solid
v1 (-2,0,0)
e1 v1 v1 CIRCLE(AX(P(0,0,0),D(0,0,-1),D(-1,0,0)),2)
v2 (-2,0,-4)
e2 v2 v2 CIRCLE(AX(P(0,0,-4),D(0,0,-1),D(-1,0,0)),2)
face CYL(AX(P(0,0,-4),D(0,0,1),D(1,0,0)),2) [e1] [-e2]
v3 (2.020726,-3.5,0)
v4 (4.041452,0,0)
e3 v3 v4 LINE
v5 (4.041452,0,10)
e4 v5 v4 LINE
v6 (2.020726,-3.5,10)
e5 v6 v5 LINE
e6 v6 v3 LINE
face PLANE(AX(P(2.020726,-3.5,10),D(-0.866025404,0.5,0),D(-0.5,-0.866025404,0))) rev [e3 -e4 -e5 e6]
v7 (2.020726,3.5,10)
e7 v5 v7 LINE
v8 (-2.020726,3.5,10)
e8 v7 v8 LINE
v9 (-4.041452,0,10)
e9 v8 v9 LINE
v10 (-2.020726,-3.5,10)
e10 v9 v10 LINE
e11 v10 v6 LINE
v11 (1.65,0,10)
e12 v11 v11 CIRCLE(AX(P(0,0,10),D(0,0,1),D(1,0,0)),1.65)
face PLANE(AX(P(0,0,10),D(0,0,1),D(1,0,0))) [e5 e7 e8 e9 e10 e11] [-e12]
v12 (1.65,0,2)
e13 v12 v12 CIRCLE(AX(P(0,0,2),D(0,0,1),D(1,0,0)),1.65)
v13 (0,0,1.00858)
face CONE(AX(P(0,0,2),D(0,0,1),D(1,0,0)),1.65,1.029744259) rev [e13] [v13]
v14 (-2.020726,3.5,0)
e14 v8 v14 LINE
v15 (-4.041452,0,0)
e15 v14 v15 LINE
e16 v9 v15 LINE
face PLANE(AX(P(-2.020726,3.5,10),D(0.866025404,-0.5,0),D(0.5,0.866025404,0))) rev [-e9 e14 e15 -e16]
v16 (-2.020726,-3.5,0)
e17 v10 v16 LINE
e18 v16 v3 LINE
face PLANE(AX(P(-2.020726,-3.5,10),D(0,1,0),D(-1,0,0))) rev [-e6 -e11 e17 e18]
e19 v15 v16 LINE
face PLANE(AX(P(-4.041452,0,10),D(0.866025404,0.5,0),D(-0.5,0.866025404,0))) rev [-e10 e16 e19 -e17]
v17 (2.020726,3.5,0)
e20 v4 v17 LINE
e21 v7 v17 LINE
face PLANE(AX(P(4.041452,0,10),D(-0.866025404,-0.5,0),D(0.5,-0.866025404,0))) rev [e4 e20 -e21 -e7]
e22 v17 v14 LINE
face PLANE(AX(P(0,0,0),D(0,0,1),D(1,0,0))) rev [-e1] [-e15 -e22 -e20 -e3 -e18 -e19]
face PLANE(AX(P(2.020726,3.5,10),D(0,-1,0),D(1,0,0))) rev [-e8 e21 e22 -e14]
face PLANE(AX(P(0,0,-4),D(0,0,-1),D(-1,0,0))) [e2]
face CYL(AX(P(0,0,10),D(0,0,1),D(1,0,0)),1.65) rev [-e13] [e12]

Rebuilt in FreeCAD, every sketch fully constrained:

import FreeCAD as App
import Part
import Sketcher
from FreeCAD import Vector
Q = App.Units.Quantity

doc = App.newDocument("Part")
params = doc.addObject("Spreadsheet::Sheet", "Params")
for row, (alias, value) in enumerate([
    ("pad1_length", "10 mm"),
    ("sketch2_diameter", "4 mm"),
    ("pad2_length", "4 mm"),
    ("sketch3_diameter", "3.3 mm"),
    ("hole_diameter", "3.3 mm"),
    ("hole_depth", "8 mm"),
], start=1):
    params.set(f"A{row}", alias)
    params.set(f"B{row}", "=" + value)
    params.setAlias(f"B{row}", alias)

body = doc.addObject("PartDesign::Body", "Body")

sketch1 = doc.addObject("Sketcher::SketchObject", "Sketch")
body.addObject(sketch1)
sketch1.AttachmentSupport = (doc.XY_Plane, [""])
sketch1.MapMode = "FlatFace"
sketch1.addGeometry([
    Part.LineSegment(Vector(-2, 3.5, 0), Vector(-4, 0, 0)),
    Part.LineSegment(Vector(-4, 0, 0), Vector(-2, -3.5, 0)),
    Part.LineSegment(Vector(-2, -3.5, 0), Vector(2, -3.5, 0)),
    Part.LineSegment(Vector(2, -3.5, 0), Vector(4, 0, 0)),
    Part.LineSegment(Vector(4, 0, 0), Vector(2, 3.5, 0)),
    Part.LineSegment(Vector(2, 3.5, 0), Vector(-2, 3.5, 0)),
], False)
sketch1.addConstraint([
    Sketcher.Constraint("Coincident", 0, 2, 1, 1),
    Sketcher.Constraint("Coincident", 1, 2, 2, 1),
    Sketcher.Constraint("Coincident", 2, 2, 3, 1),
    Sketcher.Constraint("Coincident", 3, 2, 4, 1),
    Sketcher.Constraint("Coincident", 4, 2, 5, 1),
    Sketcher.Constraint("Coincident", 5, 2, 0, 1),
    Sketcher.Constraint("Horizontal", 2),
    Sketcher.Constraint("Horizontal", 5),
    Sketcher.Constraint("Symmetric", 0, 2, 3, 2, -1, 1),
    Sketcher.Constraint("Symmetric", 1, 2, 4, 2, -1, 1),
    Sketcher.Constraint("PointOnObject", 0, 2, -1),
    Sketcher.Constraint("Parallel", 0, 3),
    Sketcher.Constraint("Vertical", 2, 2, 4, 2),
    Sketcher.Constraint("Angle", 0, Q("-120 deg")),
    Sketcher.Constraint("DistanceY", 2, 2, 4, 2, Q("7 mm")),
    Sketcher.Constraint("DistanceX", 2, 1, 2, 2, Q("4.041452 mm")),
])
pad1 = doc.addObject("PartDesign::Pad", "Pad")
body.addObject(pad1)
pad1.Profile = sketch1
pad1.setExpression("Length", "Params.pad1_length")

sketch2 = doc.addObject("Sketcher::SketchObject", "Sketch001")
body.addObject(sketch2)
sketch2.AttachmentSupport = (doc.XY_Plane, [""])
sketch2.MapMode = "FlatFace"
sketch2.addGeometry(Part.Circle(Vector(0, 0, 0), Vector(0, 0, 1), 2), False)
sketch2.addConstraint([
    Sketcher.Constraint("Coincident", 0, 3, -1, 1),
    Sketcher.Constraint("Diameter", 0, Q("4 mm")),
])
sketch2.setExpression("Constraints[1]", "Params.sketch2_diameter")
pad2 = doc.addObject("PartDesign::Pad", "Pad001")
body.addObject(pad2)
pad2.Profile = sketch2
pad2.setExpression("Length", "Params.pad2_length")
pad2.Reversed = True

sketch3 = doc.addObject("Sketcher::SketchObject", "Sketch002")
body.addObject(sketch3)
sketch3.AttachmentSupport = (doc.XY_Plane, [""])
sketch3.MapMode = "FlatFace"
sketch3.AttachmentOffset = App.Placement(Vector(0, 0, 10), App.Rotation())
sketch3.addGeometry(Part.Circle(Vector(0, 0, 0), Vector(0, 0, 1), 1.6), False)
sketch3.addConstraint([
    Sketcher.Constraint("Coincident", 0, 3, -1, 1),
    Sketcher.Constraint("Diameter", 0, Q("3.3 mm")),
])
sketch3.setExpression("Constraints[1]", "Params.sketch3_diameter")
doc.recompute()
hole = doc.addObject("PartDesign::Hole", "Hole")
body.addObject(hole)
hole.Profile = sketch3
hole.ThreadType = "None"
hole.setExpression("Diameter", "Params.hole_diameter")
hole.DepthType = "Dimension"
hole.setExpression("Depth", "Params.hole_depth")
hole.DrillPoint = "Angled"
hole.DrillPointAngle = 118

doc.recompute()
